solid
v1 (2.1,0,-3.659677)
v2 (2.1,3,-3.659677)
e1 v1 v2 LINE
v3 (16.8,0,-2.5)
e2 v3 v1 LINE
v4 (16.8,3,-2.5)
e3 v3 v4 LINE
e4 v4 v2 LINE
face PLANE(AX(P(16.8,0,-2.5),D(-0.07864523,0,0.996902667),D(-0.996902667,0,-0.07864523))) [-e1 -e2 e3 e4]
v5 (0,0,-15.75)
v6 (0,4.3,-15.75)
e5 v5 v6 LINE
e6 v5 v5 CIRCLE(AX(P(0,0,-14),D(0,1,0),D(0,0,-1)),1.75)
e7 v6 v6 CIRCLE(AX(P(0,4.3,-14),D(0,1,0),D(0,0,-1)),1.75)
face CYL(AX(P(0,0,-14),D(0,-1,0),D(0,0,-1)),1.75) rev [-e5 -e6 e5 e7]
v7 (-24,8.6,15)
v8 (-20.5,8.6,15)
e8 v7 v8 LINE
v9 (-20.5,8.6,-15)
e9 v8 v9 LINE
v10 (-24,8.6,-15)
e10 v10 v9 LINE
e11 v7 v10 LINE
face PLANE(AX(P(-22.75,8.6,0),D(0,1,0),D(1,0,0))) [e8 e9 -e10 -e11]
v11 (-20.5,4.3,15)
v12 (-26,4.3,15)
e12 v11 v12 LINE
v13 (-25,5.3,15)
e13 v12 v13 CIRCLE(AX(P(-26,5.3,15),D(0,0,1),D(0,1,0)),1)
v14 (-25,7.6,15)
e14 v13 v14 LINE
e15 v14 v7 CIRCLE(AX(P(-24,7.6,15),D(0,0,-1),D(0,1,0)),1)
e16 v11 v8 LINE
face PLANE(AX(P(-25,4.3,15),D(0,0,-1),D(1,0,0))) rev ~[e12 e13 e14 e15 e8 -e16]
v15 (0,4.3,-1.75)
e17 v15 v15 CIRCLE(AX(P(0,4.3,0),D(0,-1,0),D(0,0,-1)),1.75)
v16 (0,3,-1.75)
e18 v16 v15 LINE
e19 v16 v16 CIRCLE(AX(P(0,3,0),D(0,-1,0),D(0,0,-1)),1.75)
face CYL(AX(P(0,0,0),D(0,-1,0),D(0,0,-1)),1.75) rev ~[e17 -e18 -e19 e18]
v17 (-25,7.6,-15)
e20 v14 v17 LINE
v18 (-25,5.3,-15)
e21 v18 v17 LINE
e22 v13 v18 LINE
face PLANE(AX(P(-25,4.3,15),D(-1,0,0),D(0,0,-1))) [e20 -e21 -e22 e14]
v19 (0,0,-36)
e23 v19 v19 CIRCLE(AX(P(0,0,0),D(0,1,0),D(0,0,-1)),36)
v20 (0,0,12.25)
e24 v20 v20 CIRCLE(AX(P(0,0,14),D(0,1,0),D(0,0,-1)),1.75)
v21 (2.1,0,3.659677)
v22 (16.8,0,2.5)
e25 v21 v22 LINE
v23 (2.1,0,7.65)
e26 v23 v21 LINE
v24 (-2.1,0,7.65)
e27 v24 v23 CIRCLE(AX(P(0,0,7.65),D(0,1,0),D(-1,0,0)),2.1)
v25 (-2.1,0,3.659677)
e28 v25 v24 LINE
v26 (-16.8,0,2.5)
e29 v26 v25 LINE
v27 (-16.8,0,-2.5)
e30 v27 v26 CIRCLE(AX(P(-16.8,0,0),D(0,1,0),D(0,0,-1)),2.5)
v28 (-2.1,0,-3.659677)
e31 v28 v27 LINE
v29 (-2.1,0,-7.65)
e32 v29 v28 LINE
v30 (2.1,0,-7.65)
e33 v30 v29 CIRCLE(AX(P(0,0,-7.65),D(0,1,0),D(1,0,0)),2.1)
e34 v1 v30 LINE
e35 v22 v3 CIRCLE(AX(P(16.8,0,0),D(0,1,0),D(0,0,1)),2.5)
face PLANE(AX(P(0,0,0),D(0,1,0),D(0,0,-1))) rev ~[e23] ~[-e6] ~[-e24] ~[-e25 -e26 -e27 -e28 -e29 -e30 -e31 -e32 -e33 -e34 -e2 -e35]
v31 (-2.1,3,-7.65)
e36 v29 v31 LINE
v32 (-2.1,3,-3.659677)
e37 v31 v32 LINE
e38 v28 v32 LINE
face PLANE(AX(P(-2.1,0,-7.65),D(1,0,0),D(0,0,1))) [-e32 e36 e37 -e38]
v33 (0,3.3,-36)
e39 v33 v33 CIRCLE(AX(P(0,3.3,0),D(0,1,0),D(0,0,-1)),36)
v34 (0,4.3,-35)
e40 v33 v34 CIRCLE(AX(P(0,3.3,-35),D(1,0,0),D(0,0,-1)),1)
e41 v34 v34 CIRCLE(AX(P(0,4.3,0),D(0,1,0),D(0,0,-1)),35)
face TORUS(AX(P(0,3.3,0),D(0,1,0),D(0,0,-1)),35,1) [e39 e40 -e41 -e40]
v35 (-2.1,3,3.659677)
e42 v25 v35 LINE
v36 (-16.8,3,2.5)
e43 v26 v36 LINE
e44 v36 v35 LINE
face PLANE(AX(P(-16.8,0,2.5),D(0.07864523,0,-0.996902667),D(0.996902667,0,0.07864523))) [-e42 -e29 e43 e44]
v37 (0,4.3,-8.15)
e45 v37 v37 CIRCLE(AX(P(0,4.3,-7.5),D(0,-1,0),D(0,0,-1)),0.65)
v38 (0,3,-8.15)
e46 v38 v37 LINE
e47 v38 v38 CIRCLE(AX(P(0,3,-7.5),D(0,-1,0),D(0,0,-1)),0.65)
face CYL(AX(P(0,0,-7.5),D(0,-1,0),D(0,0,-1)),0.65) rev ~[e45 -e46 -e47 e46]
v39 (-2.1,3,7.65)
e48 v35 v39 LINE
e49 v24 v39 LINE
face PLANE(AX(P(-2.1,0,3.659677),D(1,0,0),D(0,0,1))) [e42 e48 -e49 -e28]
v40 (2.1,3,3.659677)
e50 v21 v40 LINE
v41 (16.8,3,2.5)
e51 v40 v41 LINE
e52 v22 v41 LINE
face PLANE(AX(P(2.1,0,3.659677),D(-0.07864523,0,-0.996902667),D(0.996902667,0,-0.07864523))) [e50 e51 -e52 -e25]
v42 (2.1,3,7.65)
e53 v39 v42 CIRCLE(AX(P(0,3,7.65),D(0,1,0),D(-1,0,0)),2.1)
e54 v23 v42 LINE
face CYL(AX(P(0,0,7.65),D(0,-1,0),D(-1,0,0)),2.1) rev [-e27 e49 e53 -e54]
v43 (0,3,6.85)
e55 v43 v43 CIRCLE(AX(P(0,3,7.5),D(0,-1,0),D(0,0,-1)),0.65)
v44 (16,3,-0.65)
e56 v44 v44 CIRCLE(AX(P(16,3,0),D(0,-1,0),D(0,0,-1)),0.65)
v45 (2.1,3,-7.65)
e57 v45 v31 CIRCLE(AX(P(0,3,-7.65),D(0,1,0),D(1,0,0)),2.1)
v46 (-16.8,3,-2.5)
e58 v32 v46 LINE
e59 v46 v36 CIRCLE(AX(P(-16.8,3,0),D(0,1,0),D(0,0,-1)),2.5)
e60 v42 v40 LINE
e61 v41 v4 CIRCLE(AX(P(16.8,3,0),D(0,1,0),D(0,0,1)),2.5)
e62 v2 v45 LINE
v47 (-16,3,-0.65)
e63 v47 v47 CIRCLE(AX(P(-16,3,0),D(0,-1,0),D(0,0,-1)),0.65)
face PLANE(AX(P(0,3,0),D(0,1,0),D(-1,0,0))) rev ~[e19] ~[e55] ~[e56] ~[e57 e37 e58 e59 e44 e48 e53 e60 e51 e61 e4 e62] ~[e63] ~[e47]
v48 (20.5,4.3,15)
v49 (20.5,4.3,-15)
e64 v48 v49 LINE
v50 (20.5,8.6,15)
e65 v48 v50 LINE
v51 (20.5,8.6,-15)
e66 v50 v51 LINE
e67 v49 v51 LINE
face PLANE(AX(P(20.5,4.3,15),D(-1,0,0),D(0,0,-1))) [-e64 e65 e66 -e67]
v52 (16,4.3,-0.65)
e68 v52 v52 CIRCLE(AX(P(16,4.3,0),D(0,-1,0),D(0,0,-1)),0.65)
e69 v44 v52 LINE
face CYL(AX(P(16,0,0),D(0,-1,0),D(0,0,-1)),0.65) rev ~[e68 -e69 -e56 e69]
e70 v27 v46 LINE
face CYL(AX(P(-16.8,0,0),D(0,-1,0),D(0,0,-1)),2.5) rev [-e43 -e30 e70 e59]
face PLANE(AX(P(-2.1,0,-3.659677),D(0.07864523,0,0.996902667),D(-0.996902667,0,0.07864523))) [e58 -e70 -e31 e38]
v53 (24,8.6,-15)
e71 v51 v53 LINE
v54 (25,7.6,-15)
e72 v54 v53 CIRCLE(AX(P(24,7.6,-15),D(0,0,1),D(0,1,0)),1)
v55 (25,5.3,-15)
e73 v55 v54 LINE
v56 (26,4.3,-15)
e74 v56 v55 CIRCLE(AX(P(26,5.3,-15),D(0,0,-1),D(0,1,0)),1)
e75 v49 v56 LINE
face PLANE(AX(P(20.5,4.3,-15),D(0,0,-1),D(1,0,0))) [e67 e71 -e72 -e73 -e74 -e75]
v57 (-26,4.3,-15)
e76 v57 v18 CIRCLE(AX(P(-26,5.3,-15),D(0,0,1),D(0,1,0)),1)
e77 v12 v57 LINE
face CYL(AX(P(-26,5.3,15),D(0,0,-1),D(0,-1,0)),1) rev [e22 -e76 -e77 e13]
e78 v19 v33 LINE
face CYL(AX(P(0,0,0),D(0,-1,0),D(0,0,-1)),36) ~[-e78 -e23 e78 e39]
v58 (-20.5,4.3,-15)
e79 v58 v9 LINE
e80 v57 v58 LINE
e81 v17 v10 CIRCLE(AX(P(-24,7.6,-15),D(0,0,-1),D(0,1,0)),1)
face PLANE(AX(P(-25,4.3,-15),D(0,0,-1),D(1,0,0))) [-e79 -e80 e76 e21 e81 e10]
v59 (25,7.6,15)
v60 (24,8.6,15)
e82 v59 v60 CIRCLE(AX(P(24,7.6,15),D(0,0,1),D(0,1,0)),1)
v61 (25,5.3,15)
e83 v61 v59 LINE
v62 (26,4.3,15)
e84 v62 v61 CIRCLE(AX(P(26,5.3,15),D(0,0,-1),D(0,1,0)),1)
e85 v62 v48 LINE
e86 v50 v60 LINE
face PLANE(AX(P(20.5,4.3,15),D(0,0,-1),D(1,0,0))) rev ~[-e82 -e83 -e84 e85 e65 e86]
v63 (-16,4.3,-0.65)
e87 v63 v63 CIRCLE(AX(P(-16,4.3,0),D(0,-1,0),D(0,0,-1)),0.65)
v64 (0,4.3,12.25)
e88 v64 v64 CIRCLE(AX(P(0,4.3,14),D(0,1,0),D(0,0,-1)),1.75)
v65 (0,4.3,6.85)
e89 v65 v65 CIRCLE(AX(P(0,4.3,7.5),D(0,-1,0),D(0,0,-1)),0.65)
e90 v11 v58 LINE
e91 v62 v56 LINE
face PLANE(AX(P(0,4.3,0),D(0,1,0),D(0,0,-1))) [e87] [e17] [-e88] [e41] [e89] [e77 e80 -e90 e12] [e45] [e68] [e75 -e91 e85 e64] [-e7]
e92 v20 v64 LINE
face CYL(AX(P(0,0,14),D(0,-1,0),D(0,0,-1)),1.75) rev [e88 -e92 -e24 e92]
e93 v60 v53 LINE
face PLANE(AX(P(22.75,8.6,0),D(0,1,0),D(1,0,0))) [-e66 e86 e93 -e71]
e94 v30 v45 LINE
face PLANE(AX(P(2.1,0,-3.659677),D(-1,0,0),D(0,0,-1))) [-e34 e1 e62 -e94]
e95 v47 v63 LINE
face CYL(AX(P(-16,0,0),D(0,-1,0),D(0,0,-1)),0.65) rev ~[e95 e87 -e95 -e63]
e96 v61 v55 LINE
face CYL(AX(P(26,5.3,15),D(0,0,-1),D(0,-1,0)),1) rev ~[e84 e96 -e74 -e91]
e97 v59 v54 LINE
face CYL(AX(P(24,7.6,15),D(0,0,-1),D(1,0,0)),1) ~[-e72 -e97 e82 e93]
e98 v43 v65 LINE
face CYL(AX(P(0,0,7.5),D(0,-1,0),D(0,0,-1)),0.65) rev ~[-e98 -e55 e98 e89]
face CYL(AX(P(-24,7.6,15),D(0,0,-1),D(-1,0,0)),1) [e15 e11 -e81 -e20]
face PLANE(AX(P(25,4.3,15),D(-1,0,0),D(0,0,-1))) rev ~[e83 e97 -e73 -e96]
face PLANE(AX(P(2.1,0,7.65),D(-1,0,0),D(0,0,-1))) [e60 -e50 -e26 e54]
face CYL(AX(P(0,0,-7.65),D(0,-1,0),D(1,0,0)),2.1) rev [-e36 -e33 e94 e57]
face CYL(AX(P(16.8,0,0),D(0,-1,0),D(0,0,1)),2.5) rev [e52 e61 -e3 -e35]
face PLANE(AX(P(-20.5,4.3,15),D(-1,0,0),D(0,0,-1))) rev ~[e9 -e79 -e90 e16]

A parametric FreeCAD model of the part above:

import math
import FreeCAD as App
import Part
import Sketcher
from FreeCAD import Vector


def edges_at(feature, points):
    """Names of the edges that pass closest to the given points."""
    edges = feature.Shape.Edges
    near = lambda p: min(range(len(edges)), key=lambda i: edges[i].distToShape(Part.Vertex(*p))[0])
    return sorted({f"Edge{near(p) + 1}" for p in points})


def add_polygon(sketch, points):
    """Adds a closed chain of lines whose ends are joined by coincident constraints."""
    first, n = sketch.GeometryCount, len(points)
    for a, b in zip(points, points[1:] + points[:1]):
        sketch.addGeometry(Part.LineSegment(App.Vector(*a, 0), App.Vector(*b, 0)), False)
    for i in range(n):
        sketch.addConstraint(Sketcher.Constraint("Coincident", first + i, 2, first + (i + 1) % n, 1))

doc = App.newDocument("Part")
body = doc.addObject("PartDesign::Body", "Body")

# Sketch on XZ plane
sketch1 = doc.addObject("Sketcher::SketchObject", "Sketch")
body.addObject(sketch1)
sketch1.AttachmentSupport = (doc.XZ_Plane, [""])
sketch1.MapMode = "FlatFace"
sketch1.addGeometry(Part.Circle(Vector(0, 0, 0), Vector(0, 0, 1), 36), False)
sketch1.addGeometry(Part.Circle(Vector(0, 14, 0), Vector(0, 0, 1), 1.75), False)
sketch1.addGeometry(Part.Circle(Vector(0, -14, 0), Vector(0, 0, 1), 1.75), False)
sketch1.addConstraint(Sketcher.Constraint("Coincident", 0, 3, -1, 1))
sketch1.addConstraint(Sketcher.Constraint("Equal", 1, 2))
sketch1.addConstraint(Sketcher.Constraint("Symmetric", 1, 3, 2, 3, -1, 1))
sketch1.addConstraint(Sketcher.Constraint("PointOnObject", 1, 3, -2))
sketch1.addConstraint(Sketcher.Constraint("Diameter", 0, 72.0))
sketch1.addConstraint(Sketcher.Constraint("Diameter", 1, 3.5))
sketch1.addConstraint(Sketcher.Constraint("DistanceY", -1, 1, 1, 3, 14.0))
pad1 = doc.addObject("PartDesign::Pad", "Pad")
body.addObject(pad1)
pad1.Profile = sketch1
pad1.Length = 4.3
pad1.Reversed = True

# Sketch on XZ plane
sketch2 = doc.addObject("Sketcher::SketchObject", "Sketch001")
body.addObject(sketch2)
sketch2.AttachmentSupport = (doc.XZ_Plane, [""])
sketch2.MapMode = "FlatFace"
sketch2.AttachmentOffset = App.Placement(Vector(0, 0, -4.3), App.Rotation())
add_polygon(sketch2, [(20.5, -15), (20.5, 15), (25, 15), (25, -15)])  # lines 0-3
add_polygon(sketch2, [(-25, -15), (-25, 15), (-20.5, 15), (-20.5, -15)])  # lines 4-7
sketch2.addConstraint(Sketcher.Constraint("Vertical", 0))
sketch2.addConstraint(Sketcher.Constraint("Horizontal", 1))
sketch2.addConstraint(Sketcher.Constraint("Vertical", 2))
sketch2.addConstraint(Sketcher.Constraint("Horizontal", 3))
sketch2.addConstraint(Sketcher.Constraint("Vertical", 4))
sketch2.addConstraint(Sketcher.Constraint("Horizontal", 5))
sketch2.addConstraint(Sketcher.Constraint("Vertical", 6))
sketch2.addConstraint(Sketcher.Constraint("Horizontal", 7))
sketch2.addConstraint(Sketcher.Constraint("Symmetric", 2, 2, 4, 2, -1, 1))
sketch2.addConstraint(Sketcher.Constraint("Symmetric", 0, 2, 6, 2, -1, 1))
sketch2.addConstraint(Sketcher.Constraint("Horizontal", 1, 2, 4, 2))
sketch2.addConstraint(Sketcher.Constraint("DistanceY", 0, 1, 0, 2, 30.0))
sketch2.addConstraint(Sketcher.Constraint("DistanceX", 1, 1, 1, 2, 4.5))
sketch2.addConstraint(Sketcher.Constraint("DistanceX", -1, 1, 1, 2, 25.0))
pad2 = doc.addObject("PartDesign::Pad", "Pad001")
body.addObject(pad2)
pad2.Profile = sketch2
pad2.Length = 4.3
pad2.Reversed = True
doc.recompute()

fillet = doc.addObject("PartDesign::Fillet", "Fillet")
body.addObject(fillet)
fillet.Base = (pad2, edges_at(pad2, [
    (25, 4.3, 0),
    (25, 8.6, 0),
    (-25, 4.3, 0),
    (-25, 8.6, 0),
    (0, 4.3, 36),
]))
fillet.Radius = 1

# Sketch on XZ plane
sketch3 = doc.addObject("Sketcher::SketchObject", "Sketch002")
body.addObject(sketch3)
sketch3.AttachmentSupport = (doc.XZ_Plane, [""])
sketch3.MapMode = "FlatFace"
sketch3.addGeometry(Part.LineSegment(Vector(16.8, 2.5, 0), Vector(2.1, 3.659677, 0)), False)
sketch3.addGeometry(Part.LineSegment(Vector(2.1, 3.659677, 0), Vector(2.1, 7.65, 0)), False)
sketch3.addGeometry(Part.ArcOfCircle(Part.Circle(Vector(0, 7.65, 0), Vector(0, 0, 1), 2.1), math.radians(0), math.radians(180)), False)
sketch3.addGeometry(Part.LineSegment(Vector(-2.1, 7.65, 0), Vector(-2.1, 3.659677, 0)), False)
sketch3.addGeometry(Part.LineSegment(Vector(-2.1, 3.659677, 0), Vector(-16.8, 2.5, 0)), False)
sketch3.addGeometry(Part.ArcOfCircle(Part.Circle(Vector(-16.8, 0, 0), Vector(0, 0, 1), 2.5), math.radians(90), math.radians(270)), False)
sketch3.addGeometry(Part.LineSegment(Vector(-16.8, -2.5, 0), Vector(-2.1, -3.659677, 0)), False)
sketch3.addGeometry(Part.LineSegment(Vector(-2.1, -3.659677, 0), Vector(-2.1, -7.65, 0)), False)
sketch3.addGeometry(Part.ArcOfCircle(Part.Circle(Vector(0, -7.65, 0), Vector(0, 0, 1), 2.1), math.radians(180), math.radians(360)), False)
sketch3.addGeometry(Part.LineSegment(Vector(2.1, -7.65, 0), Vector(2.1, -3.659677, 0)), False)
sketch3.addGeometry(Part.LineSegment(Vector(2.1, -3.659677, 0), Vector(16.8, -2.5, 0)), False)
sketch3.addGeometry(Part.ArcOfCircle(Part.Circle(Vector(16.8, 0, 0), Vector(0, 0, 1), 2.5), math.radians(-90), math.radians(90)), False)
sketch3.addConstraint(Sketcher.Constraint("Coincident", 0, 2, 1, 1))
sketch3.addConstraint(Sketcher.Constraint("Tangent", 1, 2, 2, 1))
sketch3.addConstraint(Sketcher.Constraint("Tangent", 2, 2, 3, 1))
sketch3.addConstraint(Sketcher.Constraint("Coincident", 3, 2, 4, 1))
sketch3.addConstraint(Sketcher.Constraint("Coincident", 4, 2, 5, 1))
sketch3.addConstraint(Sketcher.Constraint("Coincident", 5, 2, 6, 1))
sketch3.addConstraint(Sketcher.Constraint("Coincident", 6, 2, 7, 1))
sketch3.addConstraint(Sketcher.Constraint("Tangent", 7, 2, 8, 1))
sketch3.addConstraint(Sketcher.Constraint("Tangent", 8, 2, 9, 1))
sketch3.addConstraint(Sketcher.Constraint("Coincident", 9, 2, 10, 1))
sketch3.addConstraint(Sketcher.Constraint("Coincident", 10, 2, 11, 1))
sketch3.addConstraint(Sketcher.Constraint("Coincident", 11, 2, 0, 1))
sketch3.addConstraint(Sketcher.Constraint("Vertical", 1))
sketch3.addConstraint(Sketcher.Constraint("Vertical", 3))
sketch3.addConstraint(Sketcher.Constraint("Vertical", 7))
sketch3.addConstraint(Sketcher.Constraint("Vertical", 9))
sketch3.addConstraint(Sketcher.Constraint("Equal", 2, 8))
sketch3.addConstraint(Sketcher.Constraint("Equal", 5, 11))
sketch3.addConstraint(Sketcher.Constraint("Symmetric", 2, 3, 8, 3, -1, 1))
sketch3.addConstraint(Sketcher.Constraint("Symmetric", 5, 3, 11, 3, -1, 1))
sketch3.addConstraint(Sketcher.Constraint("Symmetric", 0, 2, 3, 2, -2))
sketch3.addConstraint(Sketcher.Constraint("Symmetric", 5, 2, 10, 2, -2))
sketch3.addConstraint(Sketcher.Constraint("Parallel", 0, 6))
sketch3.addConstraint(Sketcher.Constraint("Parallel", 4, 10))
sketch3.addConstraint(Sketcher.Constraint("Horizontal", 6, 2, 9, 2))
sketch3.addConstraint(Sketcher.Constraint("Vertical", 5, 3, 4, 2))
sketch3.addConstraint(Sketcher.Constraint("Vertical", 4, 2, 5, 2))
sketch3.addConstraint(Sketcher.Constraint("Radius", 2, 2.1))
sketch3.addConstraint(Sketcher.Constraint("Radius", 5, 2.5))
sketch3.addConstraint(Sketcher.Constraint("DistanceX", 5, 3, -1, 1, 16.8))
sketch3.addConstraint(Sketcher.Constraint("DistanceY", 8, 3, 2, 3, 15.3))
sketch3.addConstraint(Sketcher.Constraint("DistanceY", 1, 1, 1, 2, 3.990323))
pocket1 = doc.addObject("PartDesign::Pocket", "Pocket")
body.addObject(pocket1)
pocket1.Profile = sketch3
pocket1.Length = 3

# Sketch on XZ plane
sketch4 = doc.addObject("Sketcher::SketchObject", "Sketch003")
body.addObject(sketch4)
sketch4.AttachmentSupport = (doc.XZ_Plane, [""])
sketch4.MapMode = "FlatFace"
sketch4.addGeometry(Part.Circle(Vector(0, 0, 0), Vector(0, 0, 1), 1.75), False)
sketch4.addConstraint(Sketcher.Constraint("Coincident", 0, 3, -1, 1))
sketch4.addConstraint(Sketcher.Constraint("Diameter", 0, 3.5))
pocket2 = doc.addObject("PartDesign::Pocket", "Pocket001")
body.addObject(pocket2)
pocket2.Profile = sketch4
pocket2.Length = 10

# Sketch on XZ plane
sketch5 = doc.addObject("Sketcher::SketchObject", "Sketch004")
body.addObject(sketch5)
sketch5.AttachmentSupport = (doc.XZ_Plane, [""])
sketch5.MapMode = "FlatFace"
sketch5.addGeometry(Part.Circle(Vector(16, 0, 0), Vector(0, 0, 1), 0.65), False)
sketch5.addGeometry(Part.Circle(Vector(-16, 0, 0), Vector(0, 0, 1), 0.65), False)
sketch5.addGeometry(Part.Circle(Vector(0, 7.5, 0), Vector(0, 0, 1), 0.65), False)
sketch5.addGeometry(Part.Circle(Vector(0, -7.5, 0), Vector(0, 0, 1), 0.65), False)
sketch5.addConstraint(Sketcher.Constraint("Equal", 0, 1))
sketch5.addConstraint(Sketcher.Constraint("Equal", 1, 2))
sketch5.addConstraint(Sketcher.Constraint("Equal", 2, 3))
sketch5.addConstraint(Sketcher.Constraint("Symmetric", 0, 3, 1, 3, -1, 1))
sketch5.addConstraint(Sketcher.Constraint("Symmetric", 2, 3, 3, 3, -1, 1))
sketch5.addConstraint(Sketcher.Constraint("PointOnObject", 0, 3, -1))
sketch5.addConstraint(Sketcher.Constraint("PointOnObject", 2, 3, -2))
sketch5.addConstraint(Sketcher.Constraint("Diameter", 0, 1.3))
sketch5.addConstraint(Sketcher.Constraint("DistanceX", -1, 1, 0, 3, 16.0))
sketch5.addConstraint(Sketcher.Constraint("DistanceY", 3, 3, 2, 3, 15.0))
pocket3 = doc.addObject("PartDesign::Pocket", "Pocket002")
body.addObject(pocket3)
pocket3.Profile = sketch5
pocket3.Length = 10

doc.recompute()
